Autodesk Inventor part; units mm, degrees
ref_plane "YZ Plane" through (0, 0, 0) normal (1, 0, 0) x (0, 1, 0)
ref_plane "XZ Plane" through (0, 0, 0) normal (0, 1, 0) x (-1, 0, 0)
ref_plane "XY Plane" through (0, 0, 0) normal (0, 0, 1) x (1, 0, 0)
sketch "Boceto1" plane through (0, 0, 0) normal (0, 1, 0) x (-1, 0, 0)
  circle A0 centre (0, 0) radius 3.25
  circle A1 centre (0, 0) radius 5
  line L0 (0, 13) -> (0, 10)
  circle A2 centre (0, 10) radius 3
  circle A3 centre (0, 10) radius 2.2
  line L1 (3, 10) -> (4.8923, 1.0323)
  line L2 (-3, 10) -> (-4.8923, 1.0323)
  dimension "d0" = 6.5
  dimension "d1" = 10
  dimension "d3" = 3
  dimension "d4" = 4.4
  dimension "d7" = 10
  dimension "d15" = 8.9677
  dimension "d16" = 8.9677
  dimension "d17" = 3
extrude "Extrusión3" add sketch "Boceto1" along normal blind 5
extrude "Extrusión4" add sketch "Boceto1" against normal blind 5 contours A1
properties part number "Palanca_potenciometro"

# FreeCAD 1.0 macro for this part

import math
import FreeCAD as App
import Part
import Sketcher
from FreeCAD import Vector

doc = App.newDocument("Part")
body = doc.addObject("PartDesign::Body", "Body")

sketch1 = body.newObject("Sketcher::SketchObject", "Sketch")
sketch1.AttachmentSupport = (doc.getObject("XZ_Plane"), [""])
sketch1.MapMode = "FlatFace"
sketch1.addGeometry([
    Part.ArcOfCircle(Part.Circle(Vector(0, 0, 0), Vector(0, 0, 1), 5), math.radians(168), math.radians(372)),
    Part.LineSegment(Vector(-4.9, 1, 0), Vector(-3, 10, 0)),
    Part.ArcOfCircle(Part.Circle(Vector(0, 10, 0), Vector(0, 0, 1), 3), math.radians(90), math.radians(180)),
    Part.ArcOfCircle(Part.Circle(Vector(0, 10, 0), Vector(0, 0, 1), 3), math.radians(0), math.radians(90)),
    Part.LineSegment(Vector(3, 10, 0), Vector(4.9, 1, 0)),
    Part.Circle(Vector(0, 0, 0), Vector(0, 0, 1), 3.2),
    Part.Circle(Vector(0, 10, 0), Vector(0, 0, 1), 2.2),
], False)
sketch1.addConstraint([
    Sketcher.Constraint("Tangent", 0, 1, 1, 1),
    Sketcher.Constraint("Coincident", 1, 2, 2, 2),
    Sketcher.Constraint("Tangent", 2, 1, 3, 2),
    Sketcher.Constraint("Coincident", 3, 1, 4, 1),
    Sketcher.Constraint("Tangent", 4, 2, 0, 2),
    Sketcher.Constraint("Coincident", 0, 3, -1, 1),
    Sketcher.Constraint("Coincident", 5, 3, -1, 1),
    Sketcher.Constraint("Coincident", 6, 3, 2, 3),
    Sketcher.Constraint("Equal", 2, 3),
    Sketcher.Constraint("Symmetric", 1, 2, 3, 1, -2),
    Sketcher.Constraint("PointOnObject", 2, 1, -2),
    Sketcher.Constraint("Horizontal", 6, 3, 1, 2),
    Sketcher.Constraint("Radius", 0, 5.0),
    Sketcher.Constraint("Radius", 2, 3.0),
    Sketcher.Constraint("Diameter", 5, 6.5),
    Sketcher.Constraint("Diameter", 6, 4.4),
    Sketcher.Constraint("DistanceY", -1, 1, 2, 3, 10.0),
])
pad1 = body.newObject("PartDesign::Pad", "Pad")
pad1.Profile = sketch1
pad1.Length = 5
pad1.Reversed = True

sketch2 = body.newObject("Sketcher::SketchObject", "Sketch001")
sketch2.AttachmentSupport = (doc.getObject("XZ_Plane"), [""])
sketch2.MapMode = "FlatFace"
sketch2.addGeometry([
    Part.Circle(Vector(0, 0, 0), Vector(0, 0, 1), 5),
    Part.Circle(Vector(0, 0, 0), Vector(0, 0, 1), 3.2),
], False)
sketch2.addConstraint([
    Sketcher.Constraint("Coincident", 0, 3, -1, 1),
    Sketcher.Constraint("Coincident", 1, 3, -1, 1),
    Sketcher.Constraint("Diameter", 0, 10.0),
    Sketcher.Constraint("Diameter", 1, 6.5),
])
pad2 = body.newObject("PartDesign::Pad", "Pad001")
pad2.Profile = sketch2
pad2.Length = 5

doc.recompute()
